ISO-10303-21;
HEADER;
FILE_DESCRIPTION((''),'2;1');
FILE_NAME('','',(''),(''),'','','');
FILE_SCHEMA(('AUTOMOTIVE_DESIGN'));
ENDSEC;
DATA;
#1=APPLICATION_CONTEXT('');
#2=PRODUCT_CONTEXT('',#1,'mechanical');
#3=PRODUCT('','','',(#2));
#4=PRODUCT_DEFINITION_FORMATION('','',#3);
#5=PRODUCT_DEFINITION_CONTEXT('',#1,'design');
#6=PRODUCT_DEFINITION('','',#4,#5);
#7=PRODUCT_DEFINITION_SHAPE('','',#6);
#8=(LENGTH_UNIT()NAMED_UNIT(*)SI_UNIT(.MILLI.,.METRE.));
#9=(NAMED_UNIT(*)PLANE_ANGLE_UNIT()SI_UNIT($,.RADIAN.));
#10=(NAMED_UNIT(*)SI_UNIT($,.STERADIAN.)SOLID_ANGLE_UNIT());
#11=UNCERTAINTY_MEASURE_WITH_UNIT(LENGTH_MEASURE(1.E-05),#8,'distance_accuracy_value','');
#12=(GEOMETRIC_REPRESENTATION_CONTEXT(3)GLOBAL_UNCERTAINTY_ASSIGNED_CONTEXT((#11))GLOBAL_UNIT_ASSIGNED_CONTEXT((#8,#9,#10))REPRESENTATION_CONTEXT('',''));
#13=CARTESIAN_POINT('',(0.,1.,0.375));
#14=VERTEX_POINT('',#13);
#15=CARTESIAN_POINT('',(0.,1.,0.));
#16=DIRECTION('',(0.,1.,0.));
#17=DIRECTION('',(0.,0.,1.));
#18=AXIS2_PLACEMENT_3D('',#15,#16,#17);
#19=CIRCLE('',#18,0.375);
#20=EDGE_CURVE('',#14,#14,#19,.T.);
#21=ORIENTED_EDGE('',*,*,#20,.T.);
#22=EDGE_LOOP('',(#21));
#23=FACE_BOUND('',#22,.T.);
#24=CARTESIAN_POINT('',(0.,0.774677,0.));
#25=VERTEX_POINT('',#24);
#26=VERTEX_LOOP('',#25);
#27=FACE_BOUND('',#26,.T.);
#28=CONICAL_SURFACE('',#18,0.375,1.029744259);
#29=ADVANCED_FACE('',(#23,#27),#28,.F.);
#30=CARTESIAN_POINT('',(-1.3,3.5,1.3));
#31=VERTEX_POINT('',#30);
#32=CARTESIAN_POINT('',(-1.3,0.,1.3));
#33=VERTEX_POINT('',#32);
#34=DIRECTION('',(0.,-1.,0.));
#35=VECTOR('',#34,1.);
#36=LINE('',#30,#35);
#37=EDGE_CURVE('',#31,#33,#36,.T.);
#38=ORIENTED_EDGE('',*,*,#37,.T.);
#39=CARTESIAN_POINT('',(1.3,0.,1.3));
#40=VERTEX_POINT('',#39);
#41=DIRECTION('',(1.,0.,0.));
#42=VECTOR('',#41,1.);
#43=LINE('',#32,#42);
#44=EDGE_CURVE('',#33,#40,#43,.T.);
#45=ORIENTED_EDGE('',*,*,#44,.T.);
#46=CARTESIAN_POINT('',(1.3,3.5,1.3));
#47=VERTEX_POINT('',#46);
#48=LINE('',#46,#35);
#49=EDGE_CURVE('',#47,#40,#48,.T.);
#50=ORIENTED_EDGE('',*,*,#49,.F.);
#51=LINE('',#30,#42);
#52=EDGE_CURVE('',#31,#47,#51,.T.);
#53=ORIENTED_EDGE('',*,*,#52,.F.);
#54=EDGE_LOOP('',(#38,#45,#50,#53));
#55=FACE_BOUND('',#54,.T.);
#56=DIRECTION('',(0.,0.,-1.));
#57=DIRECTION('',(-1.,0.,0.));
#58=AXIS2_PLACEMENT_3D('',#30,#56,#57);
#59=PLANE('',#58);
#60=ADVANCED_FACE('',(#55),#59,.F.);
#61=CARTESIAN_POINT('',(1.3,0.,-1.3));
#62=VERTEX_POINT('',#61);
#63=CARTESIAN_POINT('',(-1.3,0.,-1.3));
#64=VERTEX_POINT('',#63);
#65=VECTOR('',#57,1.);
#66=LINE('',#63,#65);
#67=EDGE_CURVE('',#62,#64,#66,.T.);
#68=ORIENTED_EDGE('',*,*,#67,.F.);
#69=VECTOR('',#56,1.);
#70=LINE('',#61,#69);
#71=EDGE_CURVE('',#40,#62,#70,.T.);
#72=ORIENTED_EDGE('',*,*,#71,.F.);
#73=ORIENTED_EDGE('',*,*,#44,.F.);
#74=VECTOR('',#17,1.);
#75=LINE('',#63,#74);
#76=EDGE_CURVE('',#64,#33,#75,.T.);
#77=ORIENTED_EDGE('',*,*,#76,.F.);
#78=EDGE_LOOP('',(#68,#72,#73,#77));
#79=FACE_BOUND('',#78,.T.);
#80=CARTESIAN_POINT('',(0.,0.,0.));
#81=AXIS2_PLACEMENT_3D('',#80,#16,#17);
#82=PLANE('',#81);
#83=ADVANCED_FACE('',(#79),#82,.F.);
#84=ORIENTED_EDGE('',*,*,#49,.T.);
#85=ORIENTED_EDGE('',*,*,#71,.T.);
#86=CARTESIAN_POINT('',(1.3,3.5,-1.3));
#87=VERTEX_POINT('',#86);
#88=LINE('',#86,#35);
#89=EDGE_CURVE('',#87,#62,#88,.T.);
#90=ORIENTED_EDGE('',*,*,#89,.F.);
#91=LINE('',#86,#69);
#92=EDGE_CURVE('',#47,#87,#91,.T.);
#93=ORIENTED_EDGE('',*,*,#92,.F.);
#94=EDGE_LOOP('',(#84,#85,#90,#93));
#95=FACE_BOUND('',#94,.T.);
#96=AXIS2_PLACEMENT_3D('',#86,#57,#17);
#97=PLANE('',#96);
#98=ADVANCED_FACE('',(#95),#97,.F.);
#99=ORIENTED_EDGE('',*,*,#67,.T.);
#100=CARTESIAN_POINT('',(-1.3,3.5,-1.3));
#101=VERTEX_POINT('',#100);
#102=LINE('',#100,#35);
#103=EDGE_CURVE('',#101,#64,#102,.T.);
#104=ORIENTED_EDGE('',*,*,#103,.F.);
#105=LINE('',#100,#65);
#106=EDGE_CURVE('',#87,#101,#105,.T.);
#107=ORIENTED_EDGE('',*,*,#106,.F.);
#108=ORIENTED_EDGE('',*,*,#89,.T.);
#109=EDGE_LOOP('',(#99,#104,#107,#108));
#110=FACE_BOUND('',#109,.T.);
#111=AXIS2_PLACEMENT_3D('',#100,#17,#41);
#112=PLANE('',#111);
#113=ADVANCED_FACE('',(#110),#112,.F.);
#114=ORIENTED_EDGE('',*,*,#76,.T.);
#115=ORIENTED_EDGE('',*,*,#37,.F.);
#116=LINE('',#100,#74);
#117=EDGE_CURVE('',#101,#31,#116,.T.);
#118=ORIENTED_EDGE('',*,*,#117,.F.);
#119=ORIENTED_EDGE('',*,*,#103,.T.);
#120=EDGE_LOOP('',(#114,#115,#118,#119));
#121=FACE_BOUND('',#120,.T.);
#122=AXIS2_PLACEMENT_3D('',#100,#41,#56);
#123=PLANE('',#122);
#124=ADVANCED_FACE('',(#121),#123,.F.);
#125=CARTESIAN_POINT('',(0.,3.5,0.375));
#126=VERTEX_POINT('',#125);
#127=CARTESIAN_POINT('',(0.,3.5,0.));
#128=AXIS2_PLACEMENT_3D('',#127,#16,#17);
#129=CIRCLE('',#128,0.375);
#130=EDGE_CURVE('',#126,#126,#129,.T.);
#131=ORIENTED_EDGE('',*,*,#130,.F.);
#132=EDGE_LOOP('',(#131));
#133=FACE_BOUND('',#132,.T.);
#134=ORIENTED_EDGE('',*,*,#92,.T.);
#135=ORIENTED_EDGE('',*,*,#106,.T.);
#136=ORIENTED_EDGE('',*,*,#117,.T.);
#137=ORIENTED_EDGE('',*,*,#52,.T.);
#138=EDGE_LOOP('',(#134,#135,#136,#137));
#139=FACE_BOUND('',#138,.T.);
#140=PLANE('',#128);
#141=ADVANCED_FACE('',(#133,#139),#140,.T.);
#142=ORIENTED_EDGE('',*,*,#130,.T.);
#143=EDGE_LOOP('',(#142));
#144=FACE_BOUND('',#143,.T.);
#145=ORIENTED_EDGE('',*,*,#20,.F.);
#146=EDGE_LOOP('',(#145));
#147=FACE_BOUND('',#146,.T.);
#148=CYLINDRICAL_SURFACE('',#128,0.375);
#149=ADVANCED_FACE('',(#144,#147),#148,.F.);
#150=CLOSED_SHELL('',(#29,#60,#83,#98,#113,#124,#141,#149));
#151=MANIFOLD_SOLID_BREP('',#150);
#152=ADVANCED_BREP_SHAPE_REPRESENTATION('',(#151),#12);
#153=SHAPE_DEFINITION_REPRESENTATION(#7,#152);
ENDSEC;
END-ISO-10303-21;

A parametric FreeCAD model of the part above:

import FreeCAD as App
import Part
import Sketcher
from FreeCAD import Vector
Q = App.Units.Quantity

doc = App.newDocument("Part")
body = doc.addObject("PartDesign::Body", "Body")

# Sketch on XZ plane
sketch1 = body.newObject("Sketcher::SketchObject", "Sketch")
sketch1.AttachmentSupport = (doc.getObject("XZ_Plane"), [""])
sketch1.MapMode = "FlatFace"
sketch1.addGeometry([
    Part.LineSegment(Vector(-1.3, -1.3, 0), Vector(-1.3, 1.3, 0)),
    Part.LineSegment(Vector(-1.3, 1.3, 0), Vector(1.3, 1.3, 0)),
    Part.LineSegment(Vector(1.3, 1.3, 0), Vector(1.3, -1.3, 0)),
    Part.LineSegment(Vector(1.3, -1.3, 0), Vector(-1.3, -1.3, 0)),
], False)
sketch1.addConstraint([
    Sketcher.Constraint("Coincident", 0, 2, 1, 1),
    Sketcher.Constraint("Coincident", 1, 2, 2, 1),
    Sketcher.Constraint("Coincident", 2, 2, 3, 1),
    Sketcher.Constraint("Coincident", 3, 2, 0, 1),
    Sketcher.Constraint("Vertical", 0),
    Sketcher.Constraint("Horizontal", 1),
    Sketcher.Constraint("Vertical", 2),
    Sketcher.Constraint("Horizontal", 3),
    Sketcher.Constraint("Symmetric", 0, 2, 2, 2, -1, 1),
    Sketcher.Constraint("Equal", 3, 0),
    Sketcher.Constraint("DistanceX", 1, 1, 1, 2, Q("2.6 mm")),
])
pad1 = body.newObject("PartDesign::Pad", "Pad")
pad1.Profile = sketch1
pad1.Length = 3.5
pad1.Reversed = True

# Sketch on XZ plane
sketch2 = body.newObject("Sketcher::SketchObject", "Sketch001")
sketch2.AttachmentSupport = (doc.getObject("XZ_Plane"), [""])
sketch2.MapMode = "FlatFace"
sketch2.AttachmentOffset = App.Placement(Vector(0, 0, -3.5), App.Rotation())
sketch2.addGeometry(Part.Circle(Vector(0, 0, 0), Vector(0, 0, 1), 0.38), False)
sketch2.addConstraint([
    Sketcher.Constraint("Coincident", 0, 3, -1, 1),
    Sketcher.Constraint("Diameter", 0, Q("0.75 mm")),
])
doc.recompute()
hole = body.newObject("PartDesign::Hole", "Hole")
hole.Profile = sketch2
hole.ThreadType = "None"
hole.Diameter = 0.75
hole.DepthType = "Dimension"
hole.Depth = 2.5
hole.DrillPoint = "Angled"
hole.DrillPointAngle = 118
hole.Reversed = True

doc.recompute()
